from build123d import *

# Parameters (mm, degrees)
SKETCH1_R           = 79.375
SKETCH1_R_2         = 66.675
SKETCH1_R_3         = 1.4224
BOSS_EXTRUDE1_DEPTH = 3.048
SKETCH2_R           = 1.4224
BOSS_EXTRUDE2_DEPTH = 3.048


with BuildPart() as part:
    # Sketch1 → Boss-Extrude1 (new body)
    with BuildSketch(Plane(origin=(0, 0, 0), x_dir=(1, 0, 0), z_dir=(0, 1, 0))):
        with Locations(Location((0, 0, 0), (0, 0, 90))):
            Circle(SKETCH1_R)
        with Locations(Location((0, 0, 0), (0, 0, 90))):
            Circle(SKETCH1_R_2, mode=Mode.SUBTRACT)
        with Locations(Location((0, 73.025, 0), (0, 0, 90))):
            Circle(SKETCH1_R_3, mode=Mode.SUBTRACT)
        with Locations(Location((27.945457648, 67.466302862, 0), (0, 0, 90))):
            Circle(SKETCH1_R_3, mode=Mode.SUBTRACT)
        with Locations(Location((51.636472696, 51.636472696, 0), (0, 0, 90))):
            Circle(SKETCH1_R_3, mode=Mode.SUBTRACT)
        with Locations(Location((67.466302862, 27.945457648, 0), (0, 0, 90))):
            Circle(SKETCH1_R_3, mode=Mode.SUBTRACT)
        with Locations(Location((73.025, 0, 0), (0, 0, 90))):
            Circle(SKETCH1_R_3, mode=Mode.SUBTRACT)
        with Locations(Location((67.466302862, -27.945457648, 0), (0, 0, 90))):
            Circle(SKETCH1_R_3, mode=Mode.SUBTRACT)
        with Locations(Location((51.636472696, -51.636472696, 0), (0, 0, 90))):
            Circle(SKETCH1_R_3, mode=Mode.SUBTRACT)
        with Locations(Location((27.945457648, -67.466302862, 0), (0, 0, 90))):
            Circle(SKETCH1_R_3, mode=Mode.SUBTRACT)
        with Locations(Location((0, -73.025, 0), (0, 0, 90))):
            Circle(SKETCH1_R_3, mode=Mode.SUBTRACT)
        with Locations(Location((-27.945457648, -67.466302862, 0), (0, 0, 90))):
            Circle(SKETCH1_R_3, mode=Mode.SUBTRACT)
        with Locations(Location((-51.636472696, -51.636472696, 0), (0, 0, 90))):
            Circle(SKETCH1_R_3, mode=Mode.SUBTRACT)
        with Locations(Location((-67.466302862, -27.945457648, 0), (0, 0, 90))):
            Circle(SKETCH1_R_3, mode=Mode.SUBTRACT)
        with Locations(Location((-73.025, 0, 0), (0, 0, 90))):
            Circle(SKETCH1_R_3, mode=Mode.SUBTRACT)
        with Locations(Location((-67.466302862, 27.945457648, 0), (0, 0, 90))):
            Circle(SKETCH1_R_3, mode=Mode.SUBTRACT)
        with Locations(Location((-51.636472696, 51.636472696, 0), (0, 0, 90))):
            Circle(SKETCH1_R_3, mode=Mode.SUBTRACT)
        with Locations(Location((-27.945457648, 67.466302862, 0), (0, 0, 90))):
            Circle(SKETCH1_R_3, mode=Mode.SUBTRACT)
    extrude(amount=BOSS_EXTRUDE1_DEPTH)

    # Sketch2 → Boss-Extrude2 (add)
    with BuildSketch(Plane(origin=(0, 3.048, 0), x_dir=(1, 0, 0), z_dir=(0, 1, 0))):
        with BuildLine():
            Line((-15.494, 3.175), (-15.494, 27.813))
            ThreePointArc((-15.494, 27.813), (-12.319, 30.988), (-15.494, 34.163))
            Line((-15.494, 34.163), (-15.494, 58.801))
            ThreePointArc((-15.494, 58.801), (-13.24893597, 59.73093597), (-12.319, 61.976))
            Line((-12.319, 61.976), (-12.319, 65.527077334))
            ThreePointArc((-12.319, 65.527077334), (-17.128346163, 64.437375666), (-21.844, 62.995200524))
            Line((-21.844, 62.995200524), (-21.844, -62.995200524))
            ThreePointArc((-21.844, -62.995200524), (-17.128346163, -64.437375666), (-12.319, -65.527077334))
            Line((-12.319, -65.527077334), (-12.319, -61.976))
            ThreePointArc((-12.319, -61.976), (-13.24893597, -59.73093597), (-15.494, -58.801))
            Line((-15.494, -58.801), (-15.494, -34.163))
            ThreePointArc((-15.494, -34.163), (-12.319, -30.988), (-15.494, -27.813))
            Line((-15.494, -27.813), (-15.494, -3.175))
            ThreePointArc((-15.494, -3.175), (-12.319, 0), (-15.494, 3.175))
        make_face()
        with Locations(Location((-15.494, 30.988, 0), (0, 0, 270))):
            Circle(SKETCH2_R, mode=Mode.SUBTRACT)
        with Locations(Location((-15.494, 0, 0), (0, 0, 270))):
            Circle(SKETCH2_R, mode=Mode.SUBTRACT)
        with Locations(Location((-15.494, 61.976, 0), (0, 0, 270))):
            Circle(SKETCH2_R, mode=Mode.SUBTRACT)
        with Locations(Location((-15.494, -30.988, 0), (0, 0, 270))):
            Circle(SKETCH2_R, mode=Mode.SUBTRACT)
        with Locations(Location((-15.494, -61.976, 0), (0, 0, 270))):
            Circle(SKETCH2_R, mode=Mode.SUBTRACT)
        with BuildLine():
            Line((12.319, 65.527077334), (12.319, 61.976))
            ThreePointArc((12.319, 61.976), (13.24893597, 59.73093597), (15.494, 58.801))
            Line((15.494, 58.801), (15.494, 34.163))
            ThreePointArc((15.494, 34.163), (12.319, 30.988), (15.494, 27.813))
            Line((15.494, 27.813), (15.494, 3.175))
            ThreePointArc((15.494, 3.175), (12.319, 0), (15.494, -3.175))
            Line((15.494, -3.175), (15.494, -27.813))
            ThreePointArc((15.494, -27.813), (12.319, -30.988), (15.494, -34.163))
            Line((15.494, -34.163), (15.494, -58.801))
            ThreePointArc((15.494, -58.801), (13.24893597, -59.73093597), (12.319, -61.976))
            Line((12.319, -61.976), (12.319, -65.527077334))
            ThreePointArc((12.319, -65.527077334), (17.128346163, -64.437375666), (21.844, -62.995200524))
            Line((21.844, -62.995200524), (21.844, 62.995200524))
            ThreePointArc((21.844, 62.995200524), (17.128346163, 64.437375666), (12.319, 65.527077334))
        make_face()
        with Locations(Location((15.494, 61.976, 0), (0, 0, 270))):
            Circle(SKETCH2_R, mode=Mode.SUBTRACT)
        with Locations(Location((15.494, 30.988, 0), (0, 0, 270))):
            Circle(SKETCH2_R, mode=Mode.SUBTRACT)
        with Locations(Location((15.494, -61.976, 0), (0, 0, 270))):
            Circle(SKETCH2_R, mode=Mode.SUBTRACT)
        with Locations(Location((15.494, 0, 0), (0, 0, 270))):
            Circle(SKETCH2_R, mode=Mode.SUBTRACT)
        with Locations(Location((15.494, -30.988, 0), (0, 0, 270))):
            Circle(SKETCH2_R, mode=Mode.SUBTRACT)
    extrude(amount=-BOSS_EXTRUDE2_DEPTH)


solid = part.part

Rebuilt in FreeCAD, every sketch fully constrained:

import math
import FreeCAD as App
import Part
import Sketcher
from FreeCAD import Vector
Q = App.Units.Quantity

doc = App.newDocument("Part")
body = doc.addObject("PartDesign::Body", "Body")

# Sketch on XZ plane
sketch1 = doc.addObject("Sketcher::SketchObject", "Sketch")
body.addObject(sketch1)
sketch1.AttachmentSupport = (doc.XZ_Plane, [""])
sketch1.MapMode = "FlatFace"
sketch1.addGeometry([
    Part.Circle(Vector(0, 0, 0), Vector(0, 0, 1), 79.4),  # 0
    Part.Circle(Vector(51.6, 51.6, 0), Vector(0, 0, 1), 1.4),  # 1
    Part.Circle(Vector(67.5, 27.9, 0), Vector(0, 0, 1), 1.4),  # 2
    Part.Circle(Vector(27.9, 67.5, 0), Vector(0, 0, 1), 1.4),  # 3
    Part.Circle(Vector(0, 73, 0), Vector(0, 0, 1), 1.4),  # 4
    Part.Circle(Vector(73, 0, 0), Vector(0, 0, 1), 1.4),  # 5
    Part.Circle(Vector(67.5, -27.9, 0), Vector(0, 0, 1), 1.4),  # 6
    Part.Circle(Vector(51.6, -51.6, 0), Vector(0, 0, 1), 1.4),  # 7
    Part.Circle(Vector(27.9, -67.5, 0), Vector(0, 0, 1), 1.4),  # 8
    Part.Circle(Vector(-27.9, 67.5, 0), Vector(0, 0, 1), 1.4),  # 9
    Part.Circle(Vector(-51.6, 51.6, 0), Vector(0, 0, 1), 1.4),  # 10
    Part.Circle(Vector(-67.5, 27.9, 0), Vector(0, 0, 1), 1.4),  # 11
    Part.Circle(Vector(-73, 0, 0), Vector(0, 0, 1), 1.4),  # 12
    Part.Circle(Vector(0, 0, 0), Vector(0, 0, 1), 66.7),  # 13
    Part.Circle(Vector(0, -73, 0), Vector(0, 0, 1), 1.4),  # 14
    Part.Circle(Vector(-27.9, -67.5, 0), Vector(0, 0, 1), 1.4),  # 15
    Part.Circle(Vector(-67.5, -27.9, 0), Vector(0, 0, 1), 1.4),  # 16
    Part.Circle(Vector(-51.6, -51.6, 0), Vector(0, 0, 1), 1.4),  # 17
], False)
sketch1.addConstraint([
    Sketcher.Constraint("Coincident", 0, 3, -1, 1),
    Sketcher.Constraint("Coincident", 13, 3, -1, 1),
    Sketcher.Constraint("Equal", 1, 2),
    Sketcher.Constraint("Equal", 2, 3),
    Sketcher.Constraint("Equal", 3, 4),
    Sketcher.Constraint("Equal", 4, 5),
    Sketcher.Constraint("Equal", 5, 6),
    Sketcher.Constraint("Equal", 6, 7),
    Sketcher.Constraint("Equal", 7, 8),
    Sketcher.Constraint("Equal", 8, 9),
    Sketcher.Constraint("Equal", 9, 10),
    Sketcher.Constraint("Equal", 10, 11),
    Sketcher.Constraint("Equal", 11, 12),
    Sketcher.Constraint("Equal", 12, 14),
    Sketcher.Constraint("Equal", 14, 15),
    Sketcher.Constraint("Equal", 15, 16),
    Sketcher.Constraint("Equal", 16, 17),
    Sketcher.Constraint("Symmetric", 8, 3, 9, 3, -1, 1),
    Sketcher.Constraint("Symmetric", 7, 3, 10, 3, -1, 1),
    Sketcher.Constraint("Symmetric", 6, 3, 11, 3, -1, 1),
    Sketcher.Constraint("Symmetric", 5, 3, 12, 3, -1, 1),
    Sketcher.Constraint("Symmetric", 4, 3, 14, 3, -1, 1),
    Sketcher.Constraint("Symmetric", 3, 3, 15, 3, -1, 1),
    Sketcher.Constraint("Symmetric", 2, 3, 16, 3, -1, 1),
    Sketcher.Constraint("Symmetric", 1, 3, 17, 3, -1, 1),
    Sketcher.Constraint("Symmetric", 3, 3, 9, 3, -2),
    Sketcher.Constraint("Symmetric", 1, 3, 10, 3, -2),
    Sketcher.Constraint("Symmetric", 2, 3, 11, 3, -2),
    Sketcher.Constraint("PointOnObject", 4, 3, -2),
    Sketcher.Constraint("PointOnObject", 5, 3, -1),
    Sketcher.Constraint("Diameter", 0, Q("6.25 in")),
    Sketcher.Constraint("Diameter", 13, Q("5.25 in")),
    Sketcher.Constraint("Diameter", 1, Q("0.112 in")),
    Sketcher.Constraint("DistanceY", -1, 1, 4, 3, Q("2.875 in")),
    Sketcher.Constraint("DistanceX", -1, 1, 5, 3, Q("2.875 in")),
    Sketcher.Constraint("DistanceX", 1, 3, 2, 3, 15.82983),
    Sketcher.Constraint("DistanceY", 1, 3, 3, 3, 15.82983),
    Sketcher.Constraint("DistanceY", 6, 3, 1, 3, 79.58193),
    Sketcher.Constraint("DistanceX", 9, 3, 1, 3, 79.58193),
    Sketcher.Constraint("DistanceX", -1, 1, 1, 3, 51.636473),
    Sketcher.Constraint("DistanceY", -1, 1, 1, 3, 51.636473),
])
pad1 = doc.addObject("PartDesign::Pad", "Pad")
body.addObject(pad1)
pad1.Profile = sketch1
pad1.Length = Q("0.12 in")
pad1.Reversed = True

# Sketch on XZ plane
sketch2 = doc.addObject("Sketcher::SketchObject", "Sketch001")
body.addObject(sketch2)
sketch2.AttachmentSupport = (doc.XZ_Plane, [""])
sketch2.MapMode = "FlatFace"
sketch2.AttachmentOffset = App.Placement(Vector(0, 0, -0.12 * 25.4), App.Rotation())
sketch2.addGeometry([
    Part.LineSegment(Vector(-15.5, -3.2, 0), Vector(-15.5, -27.8, 0)),  # 0
    Part.ArcOfCircle(Part.Circle(Vector(-15.5, -31, 0), Vector(0, 0, 1), 3.2), math.radians(-90), math.radians(90)),  # 1
    Part.LineSegment(Vector(-15.5, -34.2, 0), Vector(-15.5, -58.8, 0)),  # 2
    Part.ArcOfCircle(Part.Circle(Vector(-15.5, -62, 0), Vector(0, 0, 1), 3.2), math.radians(0), math.radians(90)),  # 3
    Part.LineSegment(Vector(-12.3, -62, 0), Vector(-12.3, -65.5, 0)),  # 4
    Part.ArcOfCircle(Part.Circle(Vector(0, 0, 0), Vector(0, 0, 1), 66.7), math.radians(-109.12), math.radians(-100.65)),  # 5
    Part.LineSegment(Vector(-21.8, -63, 0), Vector(-21.8, 63, 0)),  # 6
    Part.ArcOfCircle(Part.Circle(Vector(0, 0, 0), Vector(0, 0, 1), 66.7), math.radians(100.65), math.radians(109.12)),  # 7
    Part.LineSegment(Vector(-12.3, 65.5, 0), Vector(-12.3, 62, 0)),  # 8
    Part.ArcOfCircle(Part.Circle(Vector(-15.5, 62, 0), Vector(0, 0, 1), 3.2), math.radians(-90), math.radians(0)),  # 9
    Part.LineSegment(Vector(-15.5, 58.8, 0), Vector(-15.5, 34.2, 0)),  # 10
    Part.ArcOfCircle(Part.Circle(Vector(-15.5, 31, 0), Vector(0, 0, 1), 3.2), math.radians(-90), math.radians(90)),  # 11
    Part.LineSegment(Vector(-15.5, 27.8, 0), Vector(-15.5, 3.2, 0)),  # 12
    Part.ArcOfCircle(Part.Circle(Vector(-15.5, 0, 0), Vector(0, 0, 1), 3.2), math.radians(-90), math.radians(90)),  # 13
    Part.Circle(Vector(-15.5, 62, 0), Vector(0, 0, 1), 1.4),  # 14
    Part.Circle(Vector(-15.5, 31, 0), Vector(0, 0, 1), 1.4),  # 15
    Part.Circle(Vector(-15.5, 0, 0), Vector(0, 0, 1), 1.4),  # 16
    Part.Circle(Vector(-15.5, -31, 0), Vector(0, 0, 1), 1.4),  # 17
    Part.Circle(Vector(-15.5, -62, 0), Vector(0, 0, 1), 1.4),  # 18
    Part.LineSegment(Vector(12.3, -65.5, 0), Vector(12.3, -62, 0)),  # 19
    Part.ArcOfCircle(Part.Circle(Vector(15.5, -62, 0), Vector(0, 0, 1), 3.2), math.radians(90), math.radians(180)),  # 20
    Part.LineSegment(Vector(15.5, -58.8, 0), Vector(15.5, -34.2, 0)),  # 21
    Part.ArcOfCircle(Part.Circle(Vector(15.5, -31, 0), Vector(0, 0, 1), 3.2), math.radians(90), math.radians(270)),  # 22
    Part.LineSegment(Vector(15.5, -27.8, 0), Vector(15.5, -3.2, 0)),  # 23
    Part.ArcOfCircle(Part.Circle(Vector(15.5, 0, 0), Vector(0, 0, 1), 3.2), math.radians(90), math.radians(270)),  # 24
    Part.LineSegment(Vector(15.5, 3.2, 0), Vector(15.5, 27.8, 0)),  # 25
    Part.ArcOfCircle(Part.Circle(Vector(15.5, 31, 0), Vector(0, 0, 1), 3.2), math.radians(90), math.radians(270)),  # 26
    Part.LineSegment(Vector(15.5, 34.2, 0), Vector(15.5, 58.8, 0)),  # 27
    Part.ArcOfCircle(Part.Circle(Vector(15.5, 62, 0), Vector(0, 0, 1), 3.2), math.radians(-180), math.radians(-90)),  # 28
    Part.LineSegment(Vector(12.3, 62, 0), Vector(12.3, 65.5, 0)),  # 29
    Part.ArcOfCircle(Part.Circle(Vector(0, 0, 0), Vector(0, 0, 1), 66.7), math.radians(70.88), math.radians(79.35)),  # 30
    Part.LineSegment(Vector(21.8, 63, 0), Vector(21.8, -63, 0)),  # 31
    Part.ArcOfCircle(Part.Circle(Vector(0, 0, 0), Vector(0, 0, 1), 66.7), math.radians(-79.35), math.radians(-70.88)),  # 32
    Part.Circle(Vector(15.5, 62, 0), Vector(0, 0, 1), 1.4),  # 33
    Part.Circle(Vector(15.5, 31, 0), Vector(0, 0, 1), 1.4),  # 34
    Part.Circle(Vector(15.5, 0, 0), Vector(0, 0, 1), 1.4),  # 35
    Part.Circle(Vector(15.5, -31, 0), Vector(0, 0, 1), 1.4),  # 36
    Part.Circle(Vector(15.5, -62, 0), Vector(0, 0, 1), 1.4),  # 37
], False)
sketch2.addConstraint([
    Sketcher.Constraint("Coincident", 0, 2, 1, 2),
    Sketcher.Constraint("Coincident", 1, 1, 2, 1),
    Sketcher.Constraint("Coincident", 2, 2, 3, 2),
    Sketcher.Constraint("Tangent", 3, 1, 4, 1),
    Sketcher.Constraint("Coincident", 4, 2, 5, 2),
    Sketcher.Constraint("Coincident", 5, 1, 6, 1),
    Sketcher.Constraint("Coincident", 6, 2, 7, 2),
    Sketcher.Constraint("Coincident", 7, 1, 8, 1),
    Sketcher.Constraint("Tangent", 8, 2, 9, 2),
    Sketcher.Constraint("Coincident", 9, 1, 10, 1),
    Sketcher.Constraint("Coincident", 10, 2, 11, 2),
    Sketcher.Constraint("Coincident", 11, 1, 12, 1),
    Sketcher.Constraint("Coincident", 12, 2, 13, 2),
    Sketcher.Constraint("Coincident", 13, 1, 0, 1),
    Sketcher.Constraint("Tangent", 19, 2, 20, 2),
    Sketcher.Constraint("Coincident", 20, 1, 21, 1),
    Sketcher.Constraint("Coincident", 21, 2, 22, 2),
    Sketcher.Constraint("Coincident", 22, 1, 23, 1),
    Sketcher.Constraint("Coincident", 23, 2, 24, 2),
    Sketcher.Constraint("Coincident", 24, 1, 25, 1),
    Sketcher.Constraint("Coincident", 25, 2, 26, 2),
    Sketcher.Constraint("Coincident", 26, 1, 27, 1),
    Sketcher.Constraint("Coincident", 27, 2, 28, 2),
    Sketcher.Constraint("Tangent", 28, 1, 29, 1),
    Sketcher.Constraint("Coincident", 29, 2, 30, 2),
    Sketcher.Constraint("Coincident", 30, 1, 31, 1),
    Sketcher.Constraint("Coincident", 31, 2, 32, 2),
    Sketcher.Constraint("Coincident", 32, 1, 19, 1),
    Sketcher.Constraint("Vertical", 0),
    Sketcher.Constraint("Vertical", 2),
    Sketcher.Constraint("Vertical", 4),
    Sketcher.Constraint("Vertical", 6),
    Sketcher.Constraint("Vertical", 8),
    Sketcher.Constraint("Vertical", 10),
    Sketcher.Constraint("Vertical", 12),
    Sketcher.Constraint("Vertical", 19),
    Sketcher.Constraint("Vertical", 21),
    Sketcher.Constraint("Vertical", 23),
    Sketcher.Constraint("Vertical", 25),
    Sketcher.Constraint("Vertical", 27),
    Sketcher.Constraint("Vertical", 29),
    Sketcher.Constraint("Vertical", 31),
    Sketcher.Constraint("Coincident", 5, 3, -1, 1),
    Sketcher.Constraint("Coincident", 7, 3, -1, 1),
    Sketcher.Constraint("Coincident", 30, 3, -1, 1),
    Sketcher.Constraint("Coincident", 32, 3, -1, 1),
    Sketcher.Constraint("Coincident", 14, 3, 9, 3),
    Sketcher.Constraint("Coincident", 15, 3, 11, 3),
    Sketcher.Constraint("Coincident", 16, 3, 13, 3),
    Sketcher.Constraint("Coincident", 17, 3, 1, 3),
    Sketcher.Constraint("Coincident", 18, 3, 3, 3),
    Sketcher.Constraint("Coincident", 33, 3, 28, 3),
    Sketcher.Constraint("Coincident", 34, 3, 26, 3),
    Sketcher.Constraint("Coincident", 35, 3, 24, 3),
    Sketcher.Constraint("Coincident", 36, 3, 22, 3),
    Sketcher.Constraint("Coincident", 37, 3, 20, 3),
    Sketcher.Constraint("Equal", 1, 3),
    Sketcher.Constraint("Equal", 5, 7),
    Sketcher.Constraint("Equal", 3, 9),
    Sketcher.Constraint("Equal", 9, 11),
    Sketcher.Constraint("Equal", 11, 13),
    Sketcher.Constraint("Equal", 14, 15),
    Sketcher.Constraint("Equal", 15, 16),
    Sketcher.Constraint("Equal", 16, 17),
    Sketcher.Constraint("Equal", 17, 18),
    Sketcher.Constraint("Equal", 13, 20),
    Sketcher.Constraint("Equal", 20, 22),
    Sketcher.Constraint("Equal", 22, 24),
    Sketcher.Constraint("Equal", 24, 26),
    Sketcher.Constraint("Equal", 26, 28),
    Sketcher.Constraint("Equal", 7, 30),
    Sketcher.Constraint("Equal", 30, 32),
    Sketcher.Constraint("Equal", 18, 33),
    Sketcher.Constraint("Equal", 33, 34),
    Sketcher.Constraint("Equal", 34, 35),
    Sketcher.Constraint("Equal", 35, 36),
    Sketcher.Constraint("Equal", 36, 37),
    Sketcher.Constraint("Symmetric", 9, 3, 20, 3, -1, 1),
    Sketcher.Constraint("Symmetric", 11, 3, 22, 3, -1, 1),
    Sketcher.Constraint("Symmetric", 13, 3, 24, 3, -1, 1),
    Sketcher.Constraint("Symmetric", 1, 3, 26, 3, -1, 1),
    Sketcher.Constraint("Symmetric", 3, 3, 28, 3, -1, 1),
    Sketcher.Constraint("Symmetric", 3, 3, 20, 3, -2),
    Sketcher.Constraint("Symmetric", 1, 3, 22, 3, -2),
    Sketcher.Constraint("Symmetric", 13, 1, 23, 2, -2),
    Sketcher.Constraint("Horizontal", 6, 2, 30, 1),
    Sketcher.Constraint("Vertical", 1, 3, 3, 3),
    Sketcher.Constraint("Vertical", 11, 3, 13, 3),
    Sketcher.Constraint("Vertical", 18, 3, 0, 2),
    Sketcher.Constraint("Vertical", 0, 2, 1, 1),
    Sketcher.Constraint("Vertical", 2, 2, 9, 1),
    Sketcher.Constraint("Vertical", 10, 2, 11, 1),
    Sketcher.Constraint("Vertical", 37, 3, 20, 1),
    Sketcher.Constraint("Vertical", 23, 2, 24, 1),
    Sketcher.Constraint("Vertical", 25, 2, 26, 1),
    Sketcher.Constraint("Equal", 0, 2),
    Sketcher.Constraint("Diameter", 14, Q("0.112 in")),
    Sketcher.Constraint("Radius", 1, Q("0.125 in")),
    Sketcher.Constraint("Radius", 5, Q("2.625 in")),
    Sketcher.Constraint("DistanceY", 0, 2, 0, 1, Q("0.97 in")),
    Sketcher.Constraint("DistanceX", 1, 3, -1, 1, Q("0.61 in")),
    Sketcher.Constraint("DistanceX", 5, 1, -1, 1, Q("0.86 in")),
])
pad2 = doc.addObject("PartDesign::Pad", "Pad001")
body.addObject(pad2)
pad2.Profile = sketch2
pad2.Length = Q("0.12 in")

doc.recompute()
